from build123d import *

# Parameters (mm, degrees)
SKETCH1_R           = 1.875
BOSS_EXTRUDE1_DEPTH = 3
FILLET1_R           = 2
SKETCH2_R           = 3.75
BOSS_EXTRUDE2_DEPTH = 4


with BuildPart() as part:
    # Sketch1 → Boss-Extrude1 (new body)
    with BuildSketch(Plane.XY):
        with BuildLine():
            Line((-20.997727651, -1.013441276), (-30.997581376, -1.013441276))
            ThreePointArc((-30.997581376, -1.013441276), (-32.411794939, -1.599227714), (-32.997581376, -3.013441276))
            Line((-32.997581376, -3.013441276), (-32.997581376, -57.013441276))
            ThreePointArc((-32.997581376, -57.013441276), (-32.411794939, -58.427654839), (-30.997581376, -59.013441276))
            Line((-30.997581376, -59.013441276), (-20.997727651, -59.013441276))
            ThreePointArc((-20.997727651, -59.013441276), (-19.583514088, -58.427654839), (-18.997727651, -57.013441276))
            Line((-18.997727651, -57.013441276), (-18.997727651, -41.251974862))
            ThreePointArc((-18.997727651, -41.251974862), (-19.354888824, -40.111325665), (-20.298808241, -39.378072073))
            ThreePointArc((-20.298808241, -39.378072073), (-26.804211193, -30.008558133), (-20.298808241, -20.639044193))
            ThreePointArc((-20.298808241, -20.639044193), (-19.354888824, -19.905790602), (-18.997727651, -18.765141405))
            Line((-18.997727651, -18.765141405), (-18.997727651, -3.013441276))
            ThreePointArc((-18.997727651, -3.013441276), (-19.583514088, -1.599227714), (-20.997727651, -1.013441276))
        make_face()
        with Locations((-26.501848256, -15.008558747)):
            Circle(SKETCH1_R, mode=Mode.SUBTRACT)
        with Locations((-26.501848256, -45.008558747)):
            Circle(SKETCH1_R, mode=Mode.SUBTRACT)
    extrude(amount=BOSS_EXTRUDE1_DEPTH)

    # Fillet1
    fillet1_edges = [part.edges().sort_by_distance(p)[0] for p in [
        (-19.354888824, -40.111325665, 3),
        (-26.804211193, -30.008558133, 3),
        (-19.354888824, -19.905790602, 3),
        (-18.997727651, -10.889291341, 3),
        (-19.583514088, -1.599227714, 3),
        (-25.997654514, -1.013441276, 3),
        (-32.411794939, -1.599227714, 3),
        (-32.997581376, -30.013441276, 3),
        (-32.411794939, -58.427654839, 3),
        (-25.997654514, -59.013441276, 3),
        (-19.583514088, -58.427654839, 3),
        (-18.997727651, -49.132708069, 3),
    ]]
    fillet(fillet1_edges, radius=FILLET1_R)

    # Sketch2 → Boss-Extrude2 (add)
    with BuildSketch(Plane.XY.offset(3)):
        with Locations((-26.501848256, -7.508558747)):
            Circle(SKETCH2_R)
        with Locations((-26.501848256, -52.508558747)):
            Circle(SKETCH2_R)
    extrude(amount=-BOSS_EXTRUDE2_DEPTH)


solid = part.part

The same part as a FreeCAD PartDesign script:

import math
import FreeCAD as App
import Part
import Sketcher

V = App.Vector
Q = App.Units.Quantity


def edges_at(feature, points):
    """Names of the edges that pass closest to the given points."""
    edges = feature.Shape.Edges
    near = lambda p: min(range(len(edges)), key=lambda i: edges[i].distToShape(Part.Vertex(*p))[0])
    return sorted({f"Edge{near(p) + 1}" for p in points})

doc = App.newDocument("Part")
params = doc.addObject("Spreadsheet::Sheet", "Params")
for row, (alias, value) in enumerate([
    ("sketch1_radius", "2 mm"),
    ("sketch1_radius2", "10 mm"),
    ("sketch1_diameter", "3.75 mm"),
    ("sketch1_height", "54 mm"),
    ("pad1_length", "3 mm"),
    ("fillet_radius", "2 mm"),
    ("sketch2_diameter", "7.5 mm"),
    ("pad2_length", "4 mm"),
], start=1):
    params.set(f"A{row}", alias)
    params.set(f"B{row}", "=" + value)
    params.setAlias(f"B{row}", alias)

body = doc.addObject("PartDesign::Body", "Body")

# Sketch on XY plane
sketch1 = doc.addObject("Sketcher::SketchObject", "Sketch")
body.addObject(sketch1)
sketch1.AttachmentSupport = (doc.XY_Plane, [""])
sketch1.MapMode = "FlatFace"
sketch1.addGeometry([
    Part.LineSegment(V(-21, -1, 0), V(-31, -1, 0)),  # 0
    Part.ArcOfCircle(Part.Circle(V(-31, -3, 0), V(0, 0, 1), 2), math.radians(90), math.radians(180)),  # 1
    Part.LineSegment(V(-33, -3, 0), V(-33, -57, 0)),  # 2
    Part.ArcOfCircle(Part.Circle(V(-31, -57, 0), V(0, 0, 1), 2), math.radians(180), math.radians(270)),  # 3
    Part.LineSegment(V(-31, -59, 0), V(-21, -59, 0)),  # 4
    Part.ArcOfCircle(Part.Circle(V(-21, -57, 0), V(0, 0, 1), 2), math.radians(-90), math.radians(0)),  # 5
    Part.LineSegment(V(-19, -57, 0), V(-19, -41.3, 0)),  # 6
    Part.ArcOfCircle(Part.Circle(V(-21, -41.3, 0), V(0, 0, 1), 2), math.radians(0), math.radians(70)),  # 7
    Part.ArcOfCircle(Part.Circle(V(-16.8, -30, 0), V(0, 0, 1), 10), math.radians(110), math.radians(250)),  # 8
    Part.ArcOfCircle(Part.Circle(V(-21, -18.8, 0), V(0, 0, 1), 2), math.radians(-70), math.radians(0)),  # 9
    Part.LineSegment(V(-19, -18.8, 0), V(-19, -3, 0)),  # 10
    Part.ArcOfCircle(Part.Circle(V(-21, -3, 0), V(0, 0, 1), 2), math.radians(0), math.radians(90)),  # 11
    Part.Circle(V(-26.5, -45, 0), V(0, 0, 1), 1.9),  # 12
    Part.Circle(V(-26.5, -15, 0), V(0, 0, 1), 1.9),  # 13
], False)
sketch1.addConstraint([
    Sketcher.Constraint("Tangent", 0, 2, 1, 1),
    Sketcher.Constraint("Tangent", 1, 2, 2, 1),
    Sketcher.Constraint("Tangent", 2, 2, 3, 1),
    Sketcher.Constraint("Tangent", 3, 2, 4, 1),
    Sketcher.Constraint("Tangent", 4, 2, 5, 1),
    Sketcher.Constraint("Tangent", 5, 2, 6, 1),
    Sketcher.Constraint("Tangent", 6, 2, 7, 1),
    Sketcher.Constraint("Tangent", 7, 2, 8, 2),
    Sketcher.Constraint("Tangent", 8, 1, 9, 1),
    Sketcher.Constraint("Tangent", 9, 2, 10, 1),
    Sketcher.Constraint("Tangent", 10, 2, 11, 1),
    Sketcher.Constraint("Tangent", 11, 2, 0, 1),
    Sketcher.Constraint("Horizontal", 0),
    Sketcher.Constraint("Vertical", 2),
    Sketcher.Constraint("Horizontal", 4),
    Sketcher.Constraint("Vertical", 6),
    Sketcher.Constraint("Vertical", 10),
    Sketcher.Constraint("Equal", 1, 3),
    Sketcher.Constraint("Equal", 3, 5),
    Sketcher.Constraint("Equal", 5, 7),
    Sketcher.Constraint("Equal", 7, 9),
    Sketcher.Constraint("Equal", 9, 11),
    Sketcher.Constraint("Equal", 12, 13),
    Sketcher.Constraint("Vertical", 7, 3, 9, 3),
    Sketcher.Constraint("Vertical", 12, 3, 13, 3),
    Sketcher.Constraint("Radius", 1, Q("2 mm")),
    Sketcher.Constraint("Radius", 8, Q("10 mm")),
    Sketcher.Constraint("Diameter", 12, Q("3.75 mm")),
    Sketcher.Constraint("DistanceY", 2, 2, 2, 1, Q("54 mm")),
    Sketcher.Constraint("DistanceY", 12, 3, 8, 3, Q("15.000001 mm")),
    Sketcher.Constraint("DistanceY", 8, 3, 13, 3, Q("14.999999 mm")),
    Sketcher.Constraint("DistanceY", 10, 1, 10, 2, Q("15.7517 mm")),
    Sketcher.Constraint("DistanceX", 0, 2, 0, 1, Q("9.999854 mm")),
    Sketcher.Constraint("DistanceY", 6, 1, 6, 2, Q("15.761466 mm")),
    Sketcher.Constraint("DistanceX", 1, 3, -1, 1, Q("30.997581 mm")),
    Sketcher.Constraint("DistanceY", 1, 3, -1, 1, Q("3.013441 mm")),
    Sketcher.Constraint("DistanceX", 12, 3, -1, 1, Q("26.501848 mm")),
])
sketch1.setExpression("Constraints[25]", "Params.sketch1_radius")
sketch1.setExpression("Constraints[26]", "Params.sketch1_radius2")
sketch1.setExpression("Constraints[27]", "Params.sketch1_diameter")
sketch1.setExpression("Constraints[28]", "Params.sketch1_height")
pad1 = doc.addObject("PartDesign::Pad", "Pad")
body.addObject(pad1)
pad1.Profile = sketch1
pad1.setExpression("Length", "Params.pad1_length")
doc.recompute()

fillet = doc.addObject("PartDesign::Fillet", "Fillet")
body.addObject(fillet)
fillet.Base = (pad1, edges_at(pad1, [
    (-19.355, -40.111, 3),
    (-26.804, -30.009, 3),
    (-19.355, -19.906, 3),
    (-18.998, -10.889, 3),
    (-19.584, -1.599, 3),
    (-25.998, -1.013, 3),
    (-32.412, -1.599, 3),
    (-32.998, -30.013, 3),
    (-32.412, -58.428, 3),
    (-25.998, -59.013, 3),
    (-19.584, -58.428, 3),
    (-18.998, -49.133, 3),
]))
fillet.setExpression("Radius", "Params.fillet_radius")

# Sketch on XY plane
sketch2 = doc.addObject("Sketcher::SketchObject", "Sketch001")
body.addObject(sketch2)
sketch2.AttachmentSupport = (doc.XY_Plane, [""])
sketch2.MapMode = "FlatFace"
sketch2.AttachmentOffset = App.Placement(V(0, 0, 3), App.Rotation())
sketch2.addGeometry([
    Part.Circle(V(-26.5, -7.5, 0), V(0, 0, 1), 3.8),
    Part.Circle(V(-26.5, -52.5, 0), V(0, 0, 1), 3.8),
], False)
sketch2.addConstraint([
    Sketcher.Constraint("Equal", 0, 1),
    Sketcher.Constraint("Vertical", 0, 3, 1, 3),
    Sketcher.Constraint("Diameter", 0, Q("7.5 mm")),
    Sketcher.Constraint("DistanceY", 1, 3, 0, 3, Q("45 mm")),
    Sketcher.Constraint("DistanceX", 0, 3, -1, 1, Q("26.501848 mm")),
    Sketcher.Constraint("DistanceY", 0, 3, -1, 1, Q("7.508559 mm")),
])
sketch2.setExpression("Constraints[2]", "Params.sketch2_diameter")
pad2 = doc.addObject("PartDesign::Pad", "Pad001")
body.addObject(pad2)
pad2.Profile = sketch2
pad2.setExpression("Length", "Params.pad2_length")
pad2.Reversed = True

doc.recompute()
